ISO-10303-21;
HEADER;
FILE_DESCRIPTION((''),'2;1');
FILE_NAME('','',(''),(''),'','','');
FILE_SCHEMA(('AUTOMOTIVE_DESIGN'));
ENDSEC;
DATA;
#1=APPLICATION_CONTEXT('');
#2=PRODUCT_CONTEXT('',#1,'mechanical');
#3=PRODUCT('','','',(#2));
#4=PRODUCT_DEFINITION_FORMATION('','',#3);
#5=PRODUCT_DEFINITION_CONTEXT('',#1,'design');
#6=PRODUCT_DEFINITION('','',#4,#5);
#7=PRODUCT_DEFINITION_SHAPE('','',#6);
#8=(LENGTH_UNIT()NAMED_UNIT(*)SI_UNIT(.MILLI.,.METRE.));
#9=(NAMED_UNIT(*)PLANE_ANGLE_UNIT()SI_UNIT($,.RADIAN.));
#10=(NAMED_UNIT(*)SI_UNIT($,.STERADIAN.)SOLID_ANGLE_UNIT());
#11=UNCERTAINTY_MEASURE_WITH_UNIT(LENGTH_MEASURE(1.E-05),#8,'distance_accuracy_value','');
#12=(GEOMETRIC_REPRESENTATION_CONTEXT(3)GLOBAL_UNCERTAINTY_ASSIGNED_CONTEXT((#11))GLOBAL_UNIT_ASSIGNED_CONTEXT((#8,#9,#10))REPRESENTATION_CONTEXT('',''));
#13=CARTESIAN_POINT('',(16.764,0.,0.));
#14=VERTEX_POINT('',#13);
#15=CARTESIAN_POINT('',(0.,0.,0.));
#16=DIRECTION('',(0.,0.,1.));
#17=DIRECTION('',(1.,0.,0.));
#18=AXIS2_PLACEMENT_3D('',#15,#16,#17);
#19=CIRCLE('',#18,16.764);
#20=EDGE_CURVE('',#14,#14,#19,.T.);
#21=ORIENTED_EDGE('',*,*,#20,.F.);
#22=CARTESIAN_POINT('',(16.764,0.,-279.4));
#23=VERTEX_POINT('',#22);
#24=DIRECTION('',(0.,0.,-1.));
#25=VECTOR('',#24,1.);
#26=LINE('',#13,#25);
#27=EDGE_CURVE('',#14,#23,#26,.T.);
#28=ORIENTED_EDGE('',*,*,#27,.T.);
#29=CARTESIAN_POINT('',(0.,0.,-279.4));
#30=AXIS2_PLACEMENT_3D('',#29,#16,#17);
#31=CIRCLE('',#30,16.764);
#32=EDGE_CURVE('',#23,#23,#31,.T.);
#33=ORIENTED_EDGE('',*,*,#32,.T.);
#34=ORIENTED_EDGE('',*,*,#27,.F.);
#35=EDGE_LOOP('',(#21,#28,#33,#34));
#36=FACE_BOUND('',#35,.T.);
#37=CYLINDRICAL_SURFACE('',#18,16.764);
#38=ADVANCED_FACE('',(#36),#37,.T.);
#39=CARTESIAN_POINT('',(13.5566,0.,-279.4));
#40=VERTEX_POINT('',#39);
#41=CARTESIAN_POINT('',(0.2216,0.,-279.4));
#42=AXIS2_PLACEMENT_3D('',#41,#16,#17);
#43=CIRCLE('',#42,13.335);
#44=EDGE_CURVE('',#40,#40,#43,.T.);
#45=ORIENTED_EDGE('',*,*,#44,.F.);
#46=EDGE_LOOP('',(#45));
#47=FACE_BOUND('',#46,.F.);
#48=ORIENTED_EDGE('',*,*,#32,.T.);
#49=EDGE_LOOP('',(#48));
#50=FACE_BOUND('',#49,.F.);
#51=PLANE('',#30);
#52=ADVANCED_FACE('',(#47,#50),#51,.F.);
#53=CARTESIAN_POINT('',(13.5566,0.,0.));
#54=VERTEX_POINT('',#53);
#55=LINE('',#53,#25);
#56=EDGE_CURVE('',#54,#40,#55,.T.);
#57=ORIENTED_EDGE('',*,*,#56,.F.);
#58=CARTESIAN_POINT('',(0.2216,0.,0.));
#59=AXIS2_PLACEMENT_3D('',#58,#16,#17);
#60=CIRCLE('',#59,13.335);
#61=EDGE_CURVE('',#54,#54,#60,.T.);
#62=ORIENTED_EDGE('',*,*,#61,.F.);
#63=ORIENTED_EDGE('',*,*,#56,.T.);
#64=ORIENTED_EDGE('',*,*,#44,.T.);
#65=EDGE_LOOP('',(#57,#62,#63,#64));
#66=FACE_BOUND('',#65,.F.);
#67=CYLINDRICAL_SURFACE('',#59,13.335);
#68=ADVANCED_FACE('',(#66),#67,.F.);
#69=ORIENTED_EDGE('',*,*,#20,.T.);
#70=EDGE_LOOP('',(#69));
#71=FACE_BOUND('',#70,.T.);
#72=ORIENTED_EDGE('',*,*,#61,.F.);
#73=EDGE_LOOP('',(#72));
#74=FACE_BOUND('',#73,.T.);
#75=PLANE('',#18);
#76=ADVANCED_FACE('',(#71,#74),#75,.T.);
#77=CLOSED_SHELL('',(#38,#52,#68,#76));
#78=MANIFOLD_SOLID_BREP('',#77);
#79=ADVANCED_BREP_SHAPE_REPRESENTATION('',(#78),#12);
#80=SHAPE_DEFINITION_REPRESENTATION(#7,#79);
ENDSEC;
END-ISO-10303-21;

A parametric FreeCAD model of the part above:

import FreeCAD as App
import Part
import Sketcher

V = App.Vector
Q = App.Units.Quantity

doc = App.newDocument("Part")
body = doc.addObject("PartDesign::Body", "Body")

# Sketch on XY plane
sketch1 = body.newObject("Sketcher::SketchObject", "Sketch")
sketch1.AttachmentSupport = (doc.getObject("XY_Plane"), [""])
sketch1.MapMode = "FlatFace"
sketch1.addGeometry([
    Part.Circle(V(0, 0, 0), V(0, 0, 1), 17),
    Part.Circle(V(0, 0, 0), V(0, 0, 1), 13),
], False)
sketch1.addConstraint([
    Sketcher.Constraint("Coincident", 0, 3, -1, 1),
    Sketcher.Constraint("PointOnObject", 1, 3, -1),
    Sketcher.Constraint("Diameter", 0, Q("1.32 in")),
    Sketcher.Constraint("Diameter", 1, Q("1.05 in")),
    Sketcher.Constraint("DistanceX", -1, 1, 1, 3, Q("0.2216 mm")),
])
pad1 = body.newObject("PartDesign::Pad", "Pad")
pad1.Profile = sketch1
pad1.Length = Q("11 in")
pad1.Reversed = True

doc.recompute()
